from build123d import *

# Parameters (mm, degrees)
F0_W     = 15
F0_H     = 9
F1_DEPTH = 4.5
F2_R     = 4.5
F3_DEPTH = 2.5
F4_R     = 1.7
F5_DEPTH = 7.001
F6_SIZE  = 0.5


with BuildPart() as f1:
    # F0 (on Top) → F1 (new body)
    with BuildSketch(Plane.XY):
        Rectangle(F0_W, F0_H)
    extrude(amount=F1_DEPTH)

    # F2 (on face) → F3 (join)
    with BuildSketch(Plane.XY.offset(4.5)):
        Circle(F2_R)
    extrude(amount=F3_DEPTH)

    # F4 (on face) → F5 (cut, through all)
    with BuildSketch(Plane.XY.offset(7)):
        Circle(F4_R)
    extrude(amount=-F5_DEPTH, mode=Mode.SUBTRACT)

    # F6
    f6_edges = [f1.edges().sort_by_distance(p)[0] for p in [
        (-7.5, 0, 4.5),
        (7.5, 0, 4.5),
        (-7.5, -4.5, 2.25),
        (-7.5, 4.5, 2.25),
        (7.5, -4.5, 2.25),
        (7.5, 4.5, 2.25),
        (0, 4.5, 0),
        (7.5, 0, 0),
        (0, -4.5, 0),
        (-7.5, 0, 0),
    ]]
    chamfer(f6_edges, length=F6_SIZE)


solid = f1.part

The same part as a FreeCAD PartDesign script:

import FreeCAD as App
import Part
import Sketcher

V = App.Vector


def edges_at(feature, points):
    """Names of the edges that pass closest to the given points."""
    edges = feature.Shape.Edges
    near = lambda p: min(range(len(edges)), key=lambda i: edges[i].distToShape(Part.Vertex(*p))[0])
    return sorted({f"Edge{near(p) + 1}" for p in points})


def add_polygon(sketch, points):
    """Adds a closed chain of lines whose ends are joined by coincident constraints."""
    first, n = sketch.GeometryCount, len(points)
    for a, b in zip(points, points[1:] + points[:1]):
        sketch.addGeometry(Part.LineSegment(App.Vector(*a, 0), App.Vector(*b, 0)), False)
    for i in range(n):
        sketch.addConstraint(Sketcher.Constraint("Coincident", first + i, 2, first + (i + 1) % n, 1))

doc = App.newDocument("Part")
body = doc.addObject("PartDesign::Body", "Body")

# Sketch on XY plane
sketch1 = doc.addObject("Sketcher::SketchObject", "Sketch")
body.addObject(sketch1)
sketch1.AttachmentSupport = (doc.XY_Plane, [""])
sketch1.MapMode = "FlatFace"
add_polygon(sketch1, [(-8, 4), (-8, -4), (8, -4), (8, 4)])  # lines 0-3
sketch1.addConstraint(Sketcher.Constraint("Vertical", 0))
sketch1.addConstraint(Sketcher.Constraint("Horizontal", 1))
sketch1.addConstraint(Sketcher.Constraint("Vertical", 2))
sketch1.addConstraint(Sketcher.Constraint("Horizontal", 3))
sketch1.addConstraint(Sketcher.Constraint("Symmetric", 0, 2, 2, 2, -1, 1))
sketch1.addConstraint(Sketcher.Constraint("DistanceX", 1, 1, 1, 2, 15.0))
sketch1.addConstraint(Sketcher.Constraint("DistanceY", 0, 2, 0, 1, 9.0))
pad1 = doc.addObject("PartDesign::Pad", "Pad")
body.addObject(pad1)
pad1.Profile = sketch1
pad1.Length = 4.5

# Sketch on XY plane
sketch2 = doc.addObject("Sketcher::SketchObject", "Sketch001")
body.addObject(sketch2)
sketch2.AttachmentSupport = (doc.XY_Plane, [""])
sketch2.MapMode = "FlatFace"
sketch2.AttachmentOffset = App.Placement(V(0, 0, 4.5), App.Rotation())
sketch2.addGeometry(Part.Circle(V(0, 0, 0), V(0, 0, 1), 4.5), False)
sketch2.addConstraint(Sketcher.Constraint("Coincident", 0, 3, -1, 1))
sketch2.addConstraint(Sketcher.Constraint("Diameter", 0, 9.0))
pad2 = doc.addObject("PartDesign::Pad", "Pad001")
body.addObject(pad2)
pad2.Profile = sketch2
pad2.Length = 2.5

# Sketch on XY plane
sketch3 = doc.addObject("Sketcher::SketchObject", "Sketch002")
body.addObject(sketch3)
sketch3.AttachmentSupport = (doc.XY_Plane, [""])
sketch3.MapMode = "FlatFace"
sketch3.AttachmentOffset = App.Placement(V(0, 0, 7), App.Rotation())
sketch3.addGeometry(Part.Circle(V(0, 0, 0), V(0, 0, 1), 1.7), False)
sketch3.addConstraint(Sketcher.Constraint("Coincident", 0, 3, -1, 1))
sketch3.addConstraint(Sketcher.Constraint("Diameter", 0, 3.4))
pocket1 = doc.addObject("PartDesign::Pocket", "Pocket")
body.addObject(pocket1)
pocket1.Profile = sketch3
pocket1.Type = "ThroughAll"
doc.recompute()

chamfer = doc.addObject("PartDesign::Chamfer", "Chamfer")
body.addObject(chamfer)
chamfer.Base = (pocket1, edges_at(pocket1, [
    (-7.5, 0, 4.5),
    (7.5, 0, 4.5),
    (-7.5, -4.5, 2.25),
    (-7.5, 4.5, 2.25),
    (7.5, -4.5, 2.25),
    (7.5, 4.5, 2.25),
    (0, 4.5, 0),
    (7.5, 0, 0),
    (0, -4.5, 0),
    (-7.5, 0, 0),
]))
chamfer.Size = 0.5

doc.recompute()
